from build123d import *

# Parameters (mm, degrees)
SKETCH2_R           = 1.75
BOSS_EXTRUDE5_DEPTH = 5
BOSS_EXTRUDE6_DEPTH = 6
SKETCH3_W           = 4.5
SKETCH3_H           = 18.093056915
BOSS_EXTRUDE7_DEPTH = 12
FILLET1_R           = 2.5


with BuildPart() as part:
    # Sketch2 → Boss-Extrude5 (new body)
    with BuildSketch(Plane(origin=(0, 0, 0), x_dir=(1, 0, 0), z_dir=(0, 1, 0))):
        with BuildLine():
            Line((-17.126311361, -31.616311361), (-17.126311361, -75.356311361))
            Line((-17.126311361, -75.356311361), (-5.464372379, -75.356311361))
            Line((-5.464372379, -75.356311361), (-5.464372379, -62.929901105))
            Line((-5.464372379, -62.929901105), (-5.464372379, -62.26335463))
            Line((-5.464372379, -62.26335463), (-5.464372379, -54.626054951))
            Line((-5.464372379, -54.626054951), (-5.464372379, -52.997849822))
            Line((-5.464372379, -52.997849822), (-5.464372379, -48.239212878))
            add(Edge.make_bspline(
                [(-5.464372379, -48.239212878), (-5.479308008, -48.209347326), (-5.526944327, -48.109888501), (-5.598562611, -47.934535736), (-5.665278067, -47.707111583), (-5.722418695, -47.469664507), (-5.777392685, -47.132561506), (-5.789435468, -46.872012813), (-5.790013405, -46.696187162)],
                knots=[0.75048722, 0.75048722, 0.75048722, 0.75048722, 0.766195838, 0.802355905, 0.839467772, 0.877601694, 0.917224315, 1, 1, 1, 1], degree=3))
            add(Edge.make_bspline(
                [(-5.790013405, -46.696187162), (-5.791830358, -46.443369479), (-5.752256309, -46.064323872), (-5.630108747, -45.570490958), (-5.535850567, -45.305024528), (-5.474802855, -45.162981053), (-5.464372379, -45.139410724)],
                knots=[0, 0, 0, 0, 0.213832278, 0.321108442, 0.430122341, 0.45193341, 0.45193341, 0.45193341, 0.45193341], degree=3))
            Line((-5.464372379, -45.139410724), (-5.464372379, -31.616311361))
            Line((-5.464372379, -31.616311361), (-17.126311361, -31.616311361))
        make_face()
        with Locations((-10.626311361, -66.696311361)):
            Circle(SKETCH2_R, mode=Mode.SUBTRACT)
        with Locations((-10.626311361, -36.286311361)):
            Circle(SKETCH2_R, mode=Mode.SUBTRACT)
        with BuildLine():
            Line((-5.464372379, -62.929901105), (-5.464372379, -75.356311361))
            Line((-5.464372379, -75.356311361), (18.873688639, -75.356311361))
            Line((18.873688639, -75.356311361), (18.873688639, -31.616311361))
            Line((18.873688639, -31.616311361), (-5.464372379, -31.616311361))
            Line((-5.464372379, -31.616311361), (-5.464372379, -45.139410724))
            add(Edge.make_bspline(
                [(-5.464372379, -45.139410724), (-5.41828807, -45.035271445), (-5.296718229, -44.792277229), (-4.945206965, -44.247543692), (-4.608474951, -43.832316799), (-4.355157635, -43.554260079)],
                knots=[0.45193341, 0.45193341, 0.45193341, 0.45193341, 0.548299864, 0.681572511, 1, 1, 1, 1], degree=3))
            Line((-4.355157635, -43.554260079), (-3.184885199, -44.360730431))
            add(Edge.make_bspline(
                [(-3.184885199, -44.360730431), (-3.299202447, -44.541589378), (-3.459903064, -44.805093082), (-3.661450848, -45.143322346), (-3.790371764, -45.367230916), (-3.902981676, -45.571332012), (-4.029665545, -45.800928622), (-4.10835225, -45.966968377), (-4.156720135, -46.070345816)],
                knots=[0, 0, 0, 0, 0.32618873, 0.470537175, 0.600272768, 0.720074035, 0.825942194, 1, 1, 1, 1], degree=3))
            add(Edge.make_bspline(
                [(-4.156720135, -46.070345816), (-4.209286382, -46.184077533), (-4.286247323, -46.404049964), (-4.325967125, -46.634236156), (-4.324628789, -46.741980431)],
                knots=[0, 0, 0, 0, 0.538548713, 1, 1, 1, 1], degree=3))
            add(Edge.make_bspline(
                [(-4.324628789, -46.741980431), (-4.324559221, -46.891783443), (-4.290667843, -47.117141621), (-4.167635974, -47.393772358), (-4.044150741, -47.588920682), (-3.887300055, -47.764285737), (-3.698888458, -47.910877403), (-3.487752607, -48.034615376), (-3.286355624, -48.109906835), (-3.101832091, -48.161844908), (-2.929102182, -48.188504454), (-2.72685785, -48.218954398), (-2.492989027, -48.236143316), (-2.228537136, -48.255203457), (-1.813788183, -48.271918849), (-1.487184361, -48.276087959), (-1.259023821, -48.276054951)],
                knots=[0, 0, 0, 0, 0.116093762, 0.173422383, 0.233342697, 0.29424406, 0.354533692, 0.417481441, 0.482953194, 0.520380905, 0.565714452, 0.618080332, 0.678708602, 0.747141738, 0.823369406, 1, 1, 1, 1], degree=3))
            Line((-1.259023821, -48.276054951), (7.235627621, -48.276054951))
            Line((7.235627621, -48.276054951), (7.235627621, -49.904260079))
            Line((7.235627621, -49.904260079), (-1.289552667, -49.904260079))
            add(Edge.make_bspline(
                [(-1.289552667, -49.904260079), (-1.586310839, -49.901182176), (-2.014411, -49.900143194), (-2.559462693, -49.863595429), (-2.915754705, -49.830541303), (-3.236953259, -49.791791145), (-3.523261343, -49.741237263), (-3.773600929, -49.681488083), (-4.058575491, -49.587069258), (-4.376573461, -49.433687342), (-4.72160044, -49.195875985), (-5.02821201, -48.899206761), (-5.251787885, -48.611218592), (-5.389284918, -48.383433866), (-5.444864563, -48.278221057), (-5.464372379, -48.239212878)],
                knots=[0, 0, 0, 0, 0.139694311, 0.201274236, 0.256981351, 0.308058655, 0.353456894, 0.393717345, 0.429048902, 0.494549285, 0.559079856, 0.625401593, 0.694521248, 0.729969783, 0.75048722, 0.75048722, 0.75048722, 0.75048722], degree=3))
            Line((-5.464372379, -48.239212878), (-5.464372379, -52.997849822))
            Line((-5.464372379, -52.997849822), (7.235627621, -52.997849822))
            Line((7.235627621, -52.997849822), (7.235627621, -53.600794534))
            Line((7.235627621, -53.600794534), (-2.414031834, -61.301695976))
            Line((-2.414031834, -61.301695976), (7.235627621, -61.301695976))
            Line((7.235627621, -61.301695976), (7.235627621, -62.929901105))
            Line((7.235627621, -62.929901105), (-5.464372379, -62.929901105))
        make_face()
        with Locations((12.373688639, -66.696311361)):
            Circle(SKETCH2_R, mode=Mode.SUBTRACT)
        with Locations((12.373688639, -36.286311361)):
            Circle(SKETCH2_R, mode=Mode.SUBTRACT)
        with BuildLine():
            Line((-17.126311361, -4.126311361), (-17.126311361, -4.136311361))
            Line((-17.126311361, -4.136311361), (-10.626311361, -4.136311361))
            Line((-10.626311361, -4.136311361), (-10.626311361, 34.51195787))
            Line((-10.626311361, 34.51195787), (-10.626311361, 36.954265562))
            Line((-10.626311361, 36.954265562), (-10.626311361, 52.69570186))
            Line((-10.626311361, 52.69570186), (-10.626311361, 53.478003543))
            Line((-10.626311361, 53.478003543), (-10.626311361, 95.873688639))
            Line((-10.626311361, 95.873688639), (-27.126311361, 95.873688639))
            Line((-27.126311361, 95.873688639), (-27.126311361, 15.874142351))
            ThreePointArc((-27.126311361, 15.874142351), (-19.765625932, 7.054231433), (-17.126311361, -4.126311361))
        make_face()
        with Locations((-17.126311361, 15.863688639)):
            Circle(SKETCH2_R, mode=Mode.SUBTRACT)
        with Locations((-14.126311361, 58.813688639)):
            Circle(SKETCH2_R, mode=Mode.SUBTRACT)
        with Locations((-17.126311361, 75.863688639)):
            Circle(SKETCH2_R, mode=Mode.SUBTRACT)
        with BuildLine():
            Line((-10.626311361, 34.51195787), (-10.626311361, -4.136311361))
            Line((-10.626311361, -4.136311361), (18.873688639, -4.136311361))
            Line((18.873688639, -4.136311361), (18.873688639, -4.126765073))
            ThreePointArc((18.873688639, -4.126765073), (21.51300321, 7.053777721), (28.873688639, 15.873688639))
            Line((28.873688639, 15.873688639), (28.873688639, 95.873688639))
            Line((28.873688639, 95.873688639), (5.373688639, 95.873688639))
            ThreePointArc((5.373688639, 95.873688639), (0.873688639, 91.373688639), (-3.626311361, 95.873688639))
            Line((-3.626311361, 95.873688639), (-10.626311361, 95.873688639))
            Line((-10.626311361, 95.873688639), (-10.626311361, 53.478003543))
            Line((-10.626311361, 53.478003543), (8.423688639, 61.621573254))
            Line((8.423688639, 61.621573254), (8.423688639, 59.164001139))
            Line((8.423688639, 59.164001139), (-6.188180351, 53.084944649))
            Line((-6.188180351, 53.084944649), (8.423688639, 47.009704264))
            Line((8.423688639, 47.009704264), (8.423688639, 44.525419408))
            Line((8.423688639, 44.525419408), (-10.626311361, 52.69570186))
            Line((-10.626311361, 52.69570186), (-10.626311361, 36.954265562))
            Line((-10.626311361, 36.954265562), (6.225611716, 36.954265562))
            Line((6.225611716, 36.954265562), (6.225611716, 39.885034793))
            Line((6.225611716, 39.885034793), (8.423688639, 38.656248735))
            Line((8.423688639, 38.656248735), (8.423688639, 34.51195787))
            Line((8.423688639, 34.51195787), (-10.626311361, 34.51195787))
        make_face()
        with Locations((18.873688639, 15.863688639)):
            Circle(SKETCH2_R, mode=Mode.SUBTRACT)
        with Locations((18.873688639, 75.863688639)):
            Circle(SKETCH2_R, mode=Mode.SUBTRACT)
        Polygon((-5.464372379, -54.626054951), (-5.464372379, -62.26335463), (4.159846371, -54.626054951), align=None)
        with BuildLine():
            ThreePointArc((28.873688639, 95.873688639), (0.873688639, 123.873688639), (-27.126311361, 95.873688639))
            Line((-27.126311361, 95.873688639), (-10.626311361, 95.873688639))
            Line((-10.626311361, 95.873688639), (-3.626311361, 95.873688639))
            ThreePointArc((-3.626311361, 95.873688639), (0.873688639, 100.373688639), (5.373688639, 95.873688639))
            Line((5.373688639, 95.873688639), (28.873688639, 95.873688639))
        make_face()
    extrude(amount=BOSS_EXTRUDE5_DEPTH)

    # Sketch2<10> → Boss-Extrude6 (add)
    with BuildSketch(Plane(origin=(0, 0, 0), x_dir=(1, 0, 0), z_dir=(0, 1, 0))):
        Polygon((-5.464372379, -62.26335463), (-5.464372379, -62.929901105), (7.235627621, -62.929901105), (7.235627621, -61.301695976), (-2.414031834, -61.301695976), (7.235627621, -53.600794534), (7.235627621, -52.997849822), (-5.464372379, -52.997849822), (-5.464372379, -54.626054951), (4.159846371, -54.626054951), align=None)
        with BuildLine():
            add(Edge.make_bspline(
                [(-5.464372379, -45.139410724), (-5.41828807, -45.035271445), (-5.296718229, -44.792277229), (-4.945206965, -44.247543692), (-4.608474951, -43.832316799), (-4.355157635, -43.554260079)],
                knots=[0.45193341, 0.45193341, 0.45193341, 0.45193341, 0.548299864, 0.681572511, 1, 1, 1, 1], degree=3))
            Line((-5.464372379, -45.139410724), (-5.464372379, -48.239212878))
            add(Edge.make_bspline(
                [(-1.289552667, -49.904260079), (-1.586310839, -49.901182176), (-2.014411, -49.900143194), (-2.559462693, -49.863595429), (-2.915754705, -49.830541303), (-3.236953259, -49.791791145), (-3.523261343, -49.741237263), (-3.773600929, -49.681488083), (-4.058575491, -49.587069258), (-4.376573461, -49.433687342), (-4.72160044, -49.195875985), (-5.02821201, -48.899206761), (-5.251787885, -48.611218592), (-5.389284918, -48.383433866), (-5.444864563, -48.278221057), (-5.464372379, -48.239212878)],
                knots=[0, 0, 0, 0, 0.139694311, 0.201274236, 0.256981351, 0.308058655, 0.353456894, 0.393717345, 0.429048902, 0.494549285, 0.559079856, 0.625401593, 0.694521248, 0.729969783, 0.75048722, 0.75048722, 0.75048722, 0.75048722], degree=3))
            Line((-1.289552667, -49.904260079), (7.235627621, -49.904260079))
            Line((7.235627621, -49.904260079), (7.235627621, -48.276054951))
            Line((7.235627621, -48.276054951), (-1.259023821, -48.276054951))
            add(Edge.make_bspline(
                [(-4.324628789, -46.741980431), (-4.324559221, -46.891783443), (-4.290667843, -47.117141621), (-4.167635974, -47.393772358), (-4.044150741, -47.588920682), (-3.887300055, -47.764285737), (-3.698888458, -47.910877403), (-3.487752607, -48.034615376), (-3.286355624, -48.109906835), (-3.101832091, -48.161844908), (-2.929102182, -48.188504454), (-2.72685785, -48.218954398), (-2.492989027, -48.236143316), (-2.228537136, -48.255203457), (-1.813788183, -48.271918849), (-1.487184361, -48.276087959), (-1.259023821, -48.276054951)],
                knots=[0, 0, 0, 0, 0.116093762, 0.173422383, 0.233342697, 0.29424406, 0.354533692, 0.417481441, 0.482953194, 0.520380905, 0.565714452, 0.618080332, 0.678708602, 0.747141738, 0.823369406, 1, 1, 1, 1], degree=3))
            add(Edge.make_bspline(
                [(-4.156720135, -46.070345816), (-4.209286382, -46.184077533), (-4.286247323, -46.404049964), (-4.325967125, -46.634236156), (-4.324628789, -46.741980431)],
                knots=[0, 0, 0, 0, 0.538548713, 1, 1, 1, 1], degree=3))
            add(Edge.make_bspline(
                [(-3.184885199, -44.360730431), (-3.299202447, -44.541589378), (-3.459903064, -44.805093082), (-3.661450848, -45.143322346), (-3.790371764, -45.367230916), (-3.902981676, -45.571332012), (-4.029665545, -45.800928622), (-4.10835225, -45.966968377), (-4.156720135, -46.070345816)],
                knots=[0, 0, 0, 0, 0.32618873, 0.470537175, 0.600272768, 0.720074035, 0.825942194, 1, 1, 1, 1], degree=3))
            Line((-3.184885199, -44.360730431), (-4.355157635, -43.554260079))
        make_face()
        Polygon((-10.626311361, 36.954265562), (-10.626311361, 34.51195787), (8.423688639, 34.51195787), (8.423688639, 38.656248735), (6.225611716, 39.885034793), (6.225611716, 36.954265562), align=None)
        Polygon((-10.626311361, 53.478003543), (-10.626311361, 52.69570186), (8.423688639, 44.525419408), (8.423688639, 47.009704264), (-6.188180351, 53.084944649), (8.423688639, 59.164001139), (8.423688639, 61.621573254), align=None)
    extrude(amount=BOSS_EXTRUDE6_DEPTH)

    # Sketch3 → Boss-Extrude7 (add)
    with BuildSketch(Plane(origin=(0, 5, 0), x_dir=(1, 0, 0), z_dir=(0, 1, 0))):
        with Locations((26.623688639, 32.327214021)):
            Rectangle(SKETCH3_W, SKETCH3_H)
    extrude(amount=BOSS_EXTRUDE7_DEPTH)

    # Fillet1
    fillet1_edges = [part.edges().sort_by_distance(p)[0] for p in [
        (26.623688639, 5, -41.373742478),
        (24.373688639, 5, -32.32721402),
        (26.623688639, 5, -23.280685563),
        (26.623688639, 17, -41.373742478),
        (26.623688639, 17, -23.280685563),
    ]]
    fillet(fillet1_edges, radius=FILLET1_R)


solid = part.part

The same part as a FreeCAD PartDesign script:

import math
import FreeCAD as App
import Part
import Sketcher
from FreeCAD import Vector
Q = App.Units.Quantity


def edges_at(feature, points):
    """Names of the edges that pass closest to the given points."""
    edges = feature.Shape.Edges
    near = lambda p: min(range(len(edges)), key=lambda i: edges[i].distToShape(Part.Vertex(*p))[0])
    return sorted({f"Edge{near(p) + 1}" for p in points})

doc = App.newDocument("Part")
body = doc.addObject("PartDesign::Body", "Body")
body.AllowCompound = True

sketch1 = body.newObject("Sketcher::SketchObject", "Sketch")
sketch1.AttachmentSupport = (doc.getObject("XZ_Plane"), [""])
sketch1.MapMode = "FlatFace"
sketch1.addGeometry([
    Part.LineSegment(Vector(-17.126311, 31.616311, 0), Vector(-17.126311, 75.356311, 0)),
    Part.LineSegment(Vector(-17.126311, 75.356311, 0), Vector(18.873689, 75.356311, 0)),
    Part.LineSegment(Vector(18.873689, 75.356311, 0), Vector(18.873689, 31.616311, 0)),
    Part.LineSegment(Vector(18.873689, 31.616311, 0), Vector(-17.126311, 31.616311, 0)),
    Part.Circle(Vector(-10.626311, 66.696311, 0), Vector(0, 0, 1), 1.75),
    Part.Circle(Vector(12.373689, 66.696311, 0), Vector(0, 0, 1), 1.75),
    Part.LineSegment(Vector(-5.464372, 62.929901, 0), Vector(-5.464372, 62.263355, 0)),
    Part.LineSegment(Vector(-5.464372, 62.263355, 0), Vector(4.159846, 54.626055, 0)),
    Part.LineSegment(Vector(4.159846, 54.626055, 0), Vector(-5.464372, 54.626055, 0)),
    Part.LineSegment(Vector(-5.464372, 54.626055, 0), Vector(-5.464372, 52.99785, 0)),
    Part.LineSegment(Vector(-5.464372, 52.99785, 0), Vector(7.235628, 52.99785, 0)),
    Part.LineSegment(Vector(7.235628, 52.99785, 0), Vector(7.235628, 53.600795, 0)),
    Part.LineSegment(Vector(7.235628, 53.600795, 0), Vector(-2.414032, 61.301696, 0)),
    Part.LineSegment(Vector(-2.414032, 61.301696, 0), Vector(7.235628, 61.301696, 0)),
    Part.LineSegment(Vector(7.235628, 61.301696, 0), Vector(7.235628, 62.929901, 0)),
    Part.LineSegment(Vector(7.235628, 62.929901, 0), Vector(-5.464372, 62.929901, 0)),
    Part.BSplineCurve([Vector(-5.790013, 46.696187, 0), Vector(-5.79183, 46.443369, 0), Vector(-5.752256, 46.064324, 0), Vector(-5.630109, 45.570491, 0), Vector(-5.535851, 45.305025, 0), Vector(-5.474803, 45.162981, 0), Vector(-5.464372, 45.139411, 0)], [4, 1, 1, 1, 4], [0, 0.213832278, 0.321108442, 0.430122341, 0.45193341], False, 3, [1, 1, 1, 1, 1, 1, 1], False),
    Part.BSplineCurve([Vector(-5.464372, 45.139411, 0), Vector(-5.418288, 45.035271, 0), Vector(-5.296718, 44.792277, 0), Vector(-4.945207, 44.247544, 0), Vector(-4.608475, 43.832317, 0), Vector(-4.355158, 43.55426, 0)], [4, 1, 1, 4], [0.45193341, 0.548299864, 0.681572511, 1], False, 3, [1, 1, 1, 1, 1, 1], False),
    Part.LineSegment(Vector(-4.355158, 43.55426, 0), Vector(-3.184885, 44.36073, 0)),
    Part.BSplineCurve([Vector(-3.184885, 44.36073, 0), Vector(-3.299202, 44.541589, 0), Vector(-3.459903, 44.805093, 0), Vector(-3.661451, 45.143322, 0), Vector(-3.790372, 45.367231, 0), Vector(-3.902982, 45.571332, 0), Vector(-4.029666, 45.800929, 0), Vector(-4.108352, 45.966968, 0), Vector(-4.15672, 46.070346, 0)], [4, 1, 1, 1, 1, 1, 4], [0, 0.32618873, 0.470537175, 0.600272768, 0.720074035, 0.825942194, 1], False, 3, [1, 1, 1, 1, 1, 1, 1, 1, 1], False),
    Part.BSplineCurve([Vector(-4.15672, 46.070346, 0), Vector(-4.209286, 46.184078, 0), Vector(-4.286247, 46.40405, 0), Vector(-4.325967, 46.634236, 0), Vector(-4.324629, 46.74198, 0)], [4, 1, 4], [0, 0.538548713, 1], False, 3, [1, 1, 1, 1, 1], False),
    Part.BSplineCurve([Vector(-4.324629, 46.74198, 0), Vector(-4.324559, 46.891783, 0), Vector(-4.290668, 47.117142, 0), Vector(-4.167636, 47.393772, 0), Vector(-4.044151, 47.588921, 0), Vector(-3.8873, 47.764286, 0), Vector(-3.698888, 47.910877, 0), Vector(-3.487753, 48.034615, 0), Vector(-3.286356, 48.109907, 0), Vector(-3.101832, 48.161845, 0), Vector(-2.929102, 48.188504, 0), Vector(-2.726858, 48.218954, 0), Vector(-2.492989, 48.236143, 0), Vector(-2.228537, 48.255203, 0), Vector(-1.813788, 48.271919, 0), Vector(-1.487184, 48.276088, 0), Vector(-1.259024, 48.276055, 0)], [4, 1, 1, 1, 1, 1, 1, 1, 1, 1, 1, 1, 1, 1, 4], [0, 0.116093762, 0.173422383, 0.233342697, 0.29424406, 0.354533692, 0.417481441, 0.482953194, 0.520380905, 0.565714452, 0.618080332, 0.678708602, 0.747141738, 0.823369406, 1], False, 3, [1, 1, 1, 1, 1, 1, 1, 1, 1, 1, 1, 1, 1, 1, 1, 1, 1], False),
    Part.LineSegment(Vector(-1.259024, 48.276055, 0), Vector(7.235628, 48.276055, 0)),
    Part.LineSegment(Vector(7.235628, 48.276055, 0), Vector(7.235628, 49.90426, 0)),
    Part.LineSegment(Vector(7.235628, 49.90426, 0), Vector(-1.289553, 49.90426, 0)),
    Part.BSplineCurve([Vector(-1.289553, 49.90426, 0), Vector(-1.586311, 49.901182, 0), Vector(-2.014411, 49.900143, 0), Vector(-2.559463, 49.863595, 0), Vector(-2.915755, 49.830541, 0), Vector(-3.236953, 49.791791, 0), Vector(-3.523261, 49.741237, 0), Vector(-3.773601, 49.681488, 0), Vector(-4.058575, 49.587069, 0), Vector(-4.376573, 49.433687, 0), Vector(-4.7216, 49.195876, 0), Vector(-5.028212, 48.899207, 0), Vector(-5.251788, 48.611219, 0), Vector(-5.389285, 48.383434, 0), Vector(-5.444865, 48.278221, 0), Vector(-5.464372, 48.239213, 0)], [4, 1, 1, 1, 1, 1, 1, 1, 1, 1, 1, 1, 1, 4], [0, 0.139694311, 0.201274236, 0.256981351, 0.308058655, 0.353456894, 0.393717345, 0.429048902, 0.494549285, 0.559079856, 0.625401593, 0.694521248, 0.729969783, 0.75048722], False, 3, [1, 1, 1, 1, 1, 1, 1, 1, 1, 1, 1, 1, 1, 1, 1, 1], False),
    Part.BSplineCurve([Vector(-5.464372, 48.239213, 0), Vector(-5.479308, 48.209347, 0), Vector(-5.526944, 48.109889, 0), Vector(-5.598563, 47.934536, 0), Vector(-5.665278, 47.707112, 0), Vector(-5.722419, 47.469665, 0), Vector(-5.777393, 47.132562, 0), Vector(-5.789435, 46.872013, 0), Vector(-5.790013, 46.696187, 0)], [4, 1, 1, 1, 1, 1, 4], [0.75048722, 0.766195838, 0.802355905, 0.839467772, 0.877601694, 0.917224315, 1], False, 3, [1, 1, 1, 1, 1, 1, 1, 1, 1], False),
    Part.Circle(Vector(-10.626311, 36.286311, 0), Vector(0, 0, 1), 1.75),
    Part.Circle(Vector(12.373689, 36.286311, 0), Vector(0, 0, 1), 1.75),
    Part.LineSegment(Vector(-17.126311, 4.126311, 0), Vector(-17.126311, 4.136311, 0)),
    Part.LineSegment(Vector(-17.126311, 4.136311, 0), Vector(18.873689, 4.136311, 0)),
    Part.LineSegment(Vector(18.873689, 4.136311, 0), Vector(18.873689, 4.126765, 0)),
    Part.ArcOfCircle(Part.Circle(Vector(43.874596, 4.126765, 0), Vector(0, 0, 1), 25.000907), math.radians(180), math.radians(233.129063)),
    Part.LineSegment(Vector(28.873689, -15.873689, 0), Vector(28.873689, -95.873689, 0)),
    Part.ArcOfCircle(Part.Circle(Vector(0.873689, -95.873689, 0), Vector(0, 0, 1), 28), math.radians(180), math.radians(360)),
    Part.LineSegment(Vector(-27.126311, -95.873689, 0), Vector(-27.126311, -15.874142, 0)),
    Part.ArcOfCircle(Part.Circle(Vector(-42.127219, 4.126311, 0), Vector(0, 0, 1), 25.000907), math.radians(-53.129063), math.radians(0)),
    Part.Circle(Vector(0.873689, -95.873689, 0), Vector(0, 0, 1), 4.5),
    Part.Circle(Vector(-17.126311, -15.863689, 0), Vector(0, 0, 1), 1.75),
    Part.LineSegment(Vector(-10.626311, -34.511958, 0), Vector(-10.626311, -36.954266, 0)),
    Part.LineSegment(Vector(-10.626311, -36.954266, 0), Vector(6.225612, -36.954266, 0)),
    Part.LineSegment(Vector(6.225612, -36.954266, 0), Vector(6.225612, -39.885035, 0)),
    Part.LineSegment(Vector(6.225612, -39.885035, 0), Vector(8.423689, -38.656249, 0)),
    Part.LineSegment(Vector(8.423689, -38.656249, 0), Vector(8.423689, -34.511958, 0)),
    Part.LineSegment(Vector(8.423689, -34.511958, 0), Vector(-10.626311, -34.511958, 0)),
    Part.Circle(Vector(18.873689, -15.863689, 0), Vector(0, 0, 1), 1.75),
    Part.Circle(Vector(-14.126311, -58.813689, 0), Vector(0, 0, 1), 1.75),
    Part.LineSegment(Vector(-10.626311, -52.695702, 0), Vector(-10.626311, -53.478004, 0)),
    Part.LineSegment(Vector(-10.626311, -53.478004, 0), Vector(8.423689, -61.621573, 0)),
    Part.LineSegment(Vector(8.423689, -61.621573, 0), Vector(8.423689, -59.164001, 0)),
    Part.LineSegment(Vector(8.423689, -59.164001, 0), Vector(-6.18818, -53.084945, 0)),
    Part.LineSegment(Vector(-6.18818, -53.084945, 0), Vector(8.423689, -47.009704, 0)),
    Part.LineSegment(Vector(8.423689, -47.009704, 0), Vector(8.423689, -44.525419, 0)),
    Part.LineSegment(Vector(8.423689, -44.525419, 0), Vector(-10.626311, -52.695702, 0)),
    Part.Circle(Vector(-17.126311, -75.863689, 0), Vector(0, 0, 1), 1.75),
    Part.Circle(Vector(18.873689, -75.863689, 0), Vector(0, 0, 1), 1.75),
], False)
sketch1.addConstraint([
    Sketcher.Constraint("Block", 16),
    Sketcher.Constraint("Block", 17),
    Sketcher.Constraint("Block", 19),
    Sketcher.Constraint("Block", 20),
    Sketcher.Constraint("Block", 21),
    Sketcher.Constraint("Block", 25),
    Sketcher.Constraint("Block", 26),
    Sketcher.Constraint("Coincident", 0, 2, 1, 1),
    Sketcher.Constraint("Coincident", 1, 2, 2, 1),
    Sketcher.Constraint("Coincident", 2, 2, 3, 1),
    Sketcher.Constraint("Coincident", 3, 2, 0, 1),
    Sketcher.Constraint("Coincident", 6, 2, 7, 1),
    Sketcher.Constraint("Coincident", 7, 2, 8, 1),
    Sketcher.Constraint("Coincident", 8, 2, 9, 1),
    Sketcher.Constraint("Coincident", 9, 2, 10, 1),
    Sketcher.Constraint("Coincident", 10, 2, 11, 1),
    Sketcher.Constraint("Coincident", 11, 2, 12, 1),
    Sketcher.Constraint("Coincident", 12, 2, 13, 1),
    Sketcher.Constraint("Coincident", 13, 2, 14, 1),
    Sketcher.Constraint("Coincident", 14, 2, 15, 1),
    Sketcher.Constraint("Coincident", 15, 2, 6, 1),
    Sketcher.Constraint("Coincident", 17, 2, 18, 1),
    Sketcher.Constraint("Coincident", 18, 2, 19, 1),
    Sketcher.Constraint("Coincident", 21, 2, 22, 1),
    Sketcher.Constraint("Coincident", 22, 2, 23, 1),
    Sketcher.Constraint("Coincident", 23, 2, 24, 1),
    Sketcher.Constraint("Coincident", 24, 2, 25, 1),
    Sketcher.Constraint("Coincident", 29, 2, 30, 1),
    Sketcher.Constraint("Coincident", 30, 2, 31, 1),
    Sketcher.Constraint("Coincident", 31, 2, 32, 1),
    Sketcher.Constraint("Coincident", 32, 2, 33, 1),
    Sketcher.Constraint("Coincident", 33, 2, 34, 2),
    Sketcher.Constraint("Coincident", 34, 1, 35, 1),
    Sketcher.Constraint("Coincident", 35, 2, 36, 1),
    Sketcher.Constraint("Coincident", 36, 2, 29, 1),
    Sketcher.Constraint("Coincident", 39, 2, 40, 1),
    Sketcher.Constraint("Coincident", 40, 2, 41, 1),
    Sketcher.Constraint("Coincident", 41, 2, 42, 1),
    Sketcher.Constraint("Coincident", 42, 2, 43, 1),
    Sketcher.Constraint("Coincident", 43, 2, 44, 1),
    Sketcher.Constraint("Coincident", 44, 2, 39, 1),
    Sketcher.Constraint("Coincident", 47, 2, 48, 1),
    Sketcher.Constraint("Coincident", 48, 2, 49, 1),
    Sketcher.Constraint("Coincident", 49, 2, 50, 1),
    Sketcher.Constraint("Coincident", 50, 2, 51, 1),
    Sketcher.Constraint("Coincident", 51, 2, 52, 1),
    Sketcher.Constraint("Coincident", 52, 2, 53, 1),
    Sketcher.Constraint("Coincident", 53, 2, 47, 1),
    Sketcher.Constraint("Vertical", 0),
    Sketcher.Constraint("Horizontal", 1),
    Sketcher.Constraint("Vertical", 2),
    Sketcher.Constraint("Horizontal", 3),
    Sketcher.Constraint("Vertical", 6),
    Sketcher.Constraint("Horizontal", 8),
    Sketcher.Constraint("Vertical", 9),
    Sketcher.Constraint("Horizontal", 10),
    Sketcher.Constraint("Vertical", 11),
    Sketcher.Constraint("Horizontal", 13),
    Sketcher.Constraint("Vertical", 14),
    Sketcher.Constraint("Horizontal", 15),
    Sketcher.Constraint("Horizontal", 22),
    Sketcher.Constraint("Vertical", 23),
    Sketcher.Constraint("Horizontal", 24),
    Sketcher.Constraint("Vertical", 29),
    Sketcher.Constraint("Horizontal", 30),
    Sketcher.Constraint("Vertical", 31),
    Sketcher.Constraint("Vertical", 33),
    Sketcher.Constraint("Vertical", 35),
    Sketcher.Constraint("Vertical", 39),
    Sketcher.Constraint("Horizontal", 40),
    Sketcher.Constraint("Vertical", 41),
    Sketcher.Constraint("Vertical", 43),
    Sketcher.Constraint("Horizontal", 44),
    Sketcher.Constraint("Vertical", 47),
    Sketcher.Constraint("Vertical", 49),
    Sketcher.Constraint("Vertical", 52),
    Sketcher.Constraint("Coincident", 37, 3, 34, 3),
    Sketcher.Constraint("Diameter", 37, Q("9 mm")),
    Sketcher.Constraint("Radius", 34, Q("28 mm")),
    Sketcher.Constraint("Diameter", 4, Q("3.5 mm")),
    Sketcher.Constraint("Diameter", 5, Q("3.5 mm")),
    Sketcher.Constraint("Diameter", 27, Q("3.5 mm")),
    Sketcher.Constraint("Diameter", 28, Q("3.5 mm")),
    Sketcher.Constraint("Diameter", 38, Q("3.5 mm")),
    Sketcher.Constraint("Diameter", 45, Q("3.5 mm")),
    Sketcher.Constraint("Diameter", 46, Q("3.5 mm")),
    Sketcher.Constraint("Diameter", 54, Q("3.5 mm")),
    Sketcher.Constraint("Diameter", 55, Q("3.5 mm")),
    Sketcher.Constraint("DistanceX", 1, 1, 1, 2, Q("36 mm")),
    Sketcher.Constraint("DistanceX", 30, 1, 30, 2, Q("36 mm")),
    Sketcher.Constraint("DistanceY", 33, 2, 33, 1, Q("80 mm")),
    Sketcher.Constraint("DistanceX", 10, 1, 10, 2, Q("12.7 mm")),
    Sketcher.Constraint("DistanceX", 15, 2, 15, 1, Q("12.7 mm")),
    Sketcher.Constraint("DistanceX", 4, 3, 5, 3, Q("23 mm")),
    Sketcher.Constraint("DistanceX", 27, 3, 5, 3, Q("23 mm")),
    Sketcher.Constraint("DistanceX", 27, 3, 28, 3, Q("23 mm")),
    Sketcher.Constraint("DistanceY", 37, 3, 36, 3, Q("100 mm")),
    Sketcher.Constraint("DistanceX", 38, 3, 34, 3, Q("18 mm")),
    Sketcher.Constraint("DistanceX", 38, 3, 45, 3, Q("36 mm")),
    Sketcher.Constraint("DistanceX", 46, 3, 34, 3, Q("15 mm")),
    Sketcher.Constraint("DistanceX", 54, 3, 46, 3, Q("3 mm")),
    Sketcher.Constraint("DistanceY", 54, 3, 38, 3, Q("60 mm")),
    Sketcher.Constraint("DistanceY", 54, 3, 45, 3, Q("60 mm")),
    Sketcher.Constraint("DistanceX", 34, 3, 55, 3, Q("18 mm")),
    Sketcher.Constraint("DistanceY", 55, 3, 45, 3, Q("60 mm")),
    Sketcher.Constraint("DistanceY", 38, 3, 29, 2, Q("20 mm")),
    Sketcher.Constraint("DistanceX", 29, 2, 45, 3, Q("36 mm")),
    Sketcher.Constraint("DistanceX", 44, 2, 44, 1, Q("19.05 mm")),
    Sketcher.Constraint("DistanceY", 0, 1, 0, 2, Q("43.74 mm")),
    Sketcher.Constraint("DistanceY", 29, 1, 29, 2, Q("0.01 mm")),
    Sketcher.Constraint("DistanceX", 27, 3, 34, 3, Q("11.5 mm")),
    Sketcher.Constraint("DistanceX", 0, 2, 4, 3, Q("6.5 mm")),
    Sketcher.Constraint("DistanceX", 6, 2, 10, 2, Q("12.7 mm")),
    Sketcher.Constraint("DistanceX", 38, 3, 39, 2, Q("6.5 mm")),
    Sketcher.Constraint("DistanceX", 46, 3, 47, 2, Q("3.5 mm")),
    Sketcher.Constraint("DistanceY", 27, 3, 4, 3, Q("30.41 mm")),
    Sketcher.Constraint("DistanceY", 27, 3, 5, 3, Q("30.41 mm")),
    Sketcher.Constraint("DistanceY", 28, 3, 5, 3, Q("30.41 mm")),
    Sketcher.Constraint("DistanceY", 34, 3, 27, 3, Q("132.16 mm")),
    Sketcher.Constraint("DistanceY", 38, 3, 36, 3, Q("19.99 mm")),
    Sketcher.Constraint("DistanceY", 34, 3, 46, 3, Q("37.06 mm")),
    Sketcher.Constraint("DistanceY", 4, 3, 0, 2, Q("8.66 mm")),
    Sketcher.Constraint("DistanceY", 22, 2, 7, 2, Q("6.35 mm")),
    Sketcher.Constraint("DistanceY", 32, 2, 45, 3, Q("0.01 mm")),
    Sketcher.Constraint("DistanceY", 34, 1, 54, 3, Q("20.01 mm")),
    Sketcher.Constraint("DistanceX", 48, 2, 55, 3, Q("10.45 mm")),
    Sketcher.Constraint("DistanceY", 47, 2, 47, 1, Q("0.782302 mm")),
    Sketcher.Constraint("DistanceY", 49, 2, -1, 1, Q("59.164001 mm")),
    Sketcher.Constraint("Radius", 32, Q("25.000907 mm")),
    Sketcher.Constraint("Radius", 36, Q("25.000907 mm")),
    Sketcher.Constraint("DistanceX", 8, 2, 8, 1, Q("9.624219 mm")),
    Sketcher.Constraint("DistanceX", 13, 1, 13, 2, Q("9.649659 mm")),
    Sketcher.Constraint("DistanceX", 22, 1, 22, 2, Q("8.494651 mm")),
    Sketcher.Constraint("DistanceY", 41, 2, 41, 1, Q("2.930769 mm")),
    Sketcher.Constraint("DistanceY", 43, 1, 43, 2, Q("4.144291 mm")),
    Sketcher.Constraint("DistanceY", -1, 1, 14, 2, Q("62.929901 mm")),
    Sketcher.Constraint("DistanceY", 53, 2, -1, 1, Q("52.695702 mm")),
    Sketcher.Constraint("DistanceY", 7, 2, 6, 2, Q("7.6373 mm")),
    Sketcher.Constraint("DistanceY", 11, 2, 13, 2, Q("7.700901 mm")),
    Sketcher.Constraint("DistanceX", 24, 2, 7, 2, Q("5.449399 mm")),
    Sketcher.Constraint("Distance", 48, Q("20.717631 mm")),
    Sketcher.Constraint("Distance", 50, Q("15.82598 mm")),
    Sketcher.Constraint("DistanceX", 40, 1, 40, 2, Q("16.851923 mm")),
    Sketcher.Constraint("DistanceY", 9, 2, 9, 1, Q("1.628205 mm")),
    Sketcher.Constraint("DistanceY", 11, 1, 11, 2, Q("0.602945 mm")),
    Sketcher.Constraint("DistanceY", 31, 2, 31, 1, Q("0.009546 mm")),
    Sketcher.Constraint("DistanceY", 39, 2, 39, 1, Q("2.442308 mm")),
    Sketcher.Constraint("DistanceY", 52, 1, 52, 2, Q("2.484285 mm")),
    Sketcher.Constraint("DistanceX", 4, 3, -1, 1, Q("10.626311 mm")),
    Sketcher.Constraint("DistanceY", -1, 1, 4, 3, Q("66.696311 mm")),
    Sketcher.Constraint("DistanceY", 42, 2, -1, 1, Q("38.656249 mm")),
    Sketcher.Constraint("DistanceX", 50, 2, -1, 1, Q("6.18818 mm")),
    Sketcher.Constraint("DistanceX", -1, 1, 51, 2, Q("8.423689 mm")),
    Sketcher.Constraint("DistanceY", 52, 2, -1, 1, Q("44.525419 mm")),
])
pad1 = body.newObject("PartDesign::Pad", "Pad")
pad1.Profile = sketch1
pad1.Length = 5
pad1.Reversed = True

sketch2 = body.newObject("Sketcher::SketchObject", "Sketch001")
sketch2.AttachmentSupport = (doc.getObject("XZ_Plane"), [""])
sketch2.MapMode = "FlatFace"
sketch2.addGeometry([
    Part.LineSegment(Vector(-5.464372, 62.263355, 0), Vector(-5.464372, 62.929901, 0)),
    Part.LineSegment(Vector(-5.464372, 62.929901, 0), Vector(7.235628, 62.929901, 0)),
    Part.LineSegment(Vector(7.235628, 62.929901, 0), Vector(7.235628, 61.301696, 0)),
    Part.LineSegment(Vector(7.235628, 61.301696, 0), Vector(-2.414032, 61.301696, 0)),
    Part.LineSegment(Vector(-2.414032, 61.301696, 0), Vector(7.235628, 53.600795, 0)),
    Part.LineSegment(Vector(7.235628, 53.600795, 0), Vector(7.235628, 52.99785, 0)),
    Part.LineSegment(Vector(7.235628, 52.99785, 0), Vector(-5.464372, 52.99785, 0)),
    Part.LineSegment(Vector(-5.464372, 52.99785, 0), Vector(-5.464372, 54.626055, 0)),
    Part.LineSegment(Vector(-5.464372, 54.626055, 0), Vector(4.159846, 54.626055, 0)),
    Part.LineSegment(Vector(4.159846, 54.626055, 0), Vector(-5.464372, 62.263355, 0)),
    Part.BSplineCurve([Vector(-5.464372, 45.139411, 0), Vector(-5.418288, 45.035271, 0), Vector(-5.296718, 44.792277, 0), Vector(-4.945207, 44.247544, 0), Vector(-4.608475, 43.832317, 0), Vector(-4.355158, 43.55426, 0)], [4, 1, 1, 4], [0.45193341, 0.548299864, 0.681572511, 1], False, 3, [1, 1, 1, 1, 1, 1], False),
    Part.LineSegment(Vector(-5.464372, 45.139411, 0), Vector(-5.464372, 48.239213, 0)),
    Part.BSplineCurve([Vector(-1.289553, 49.90426, 0), Vector(-1.586311, 49.901182, 0), Vector(-2.014411, 49.900143, 0), Vector(-2.559463, 49.863595, 0), Vector(-2.915755, 49.830541, 0), Vector(-3.236953, 49.791791, 0), Vector(-3.523261, 49.741237, 0), Vector(-3.773601, 49.681488, 0), Vector(-4.058575, 49.587069, 0), Vector(-4.376573, 49.433687, 0), Vector(-4.7216, 49.195876, 0), Vector(-5.028212, 48.899207, 0), Vector(-5.251788, 48.611219, 0), Vector(-5.389285, 48.383434, 0), Vector(-5.444865, 48.278221, 0), Vector(-5.464372, 48.239213, 0)], [4, 1, 1, 1, 1, 1, 1, 1, 1, 1, 1, 1, 1, 4], [0, 0.139694311, 0.201274236, 0.256981351, 0.308058655, 0.353456894, 0.393717345, 0.429048902, 0.494549285, 0.559079856, 0.625401593, 0.694521248, 0.729969783, 0.75048722], False, 3, [1, 1, 1, 1, 1, 1, 1, 1, 1, 1, 1, 1, 1, 1, 1, 1], False),
    Part.LineSegment(Vector(-1.289553, 49.90426, 0), Vector(7.235628, 49.90426, 0)),
    Part.LineSegment(Vector(7.235628, 49.90426, 0), Vector(7.235628, 48.276055, 0)),
    Part.LineSegment(Vector(7.235628, 48.276055, 0), Vector(-1.259024, 48.276055, 0)),
    Part.BSplineCurve([Vector(-4.324629, 46.74198, 0), Vector(-4.324559, 46.891783, 0), Vector(-4.290668, 47.117142, 0), Vector(-4.167636, 47.393772, 0), Vector(-4.044151, 47.588921, 0), Vector(-3.8873, 47.764286, 0), Vector(-3.698888, 47.910877, 0), Vector(-3.487753, 48.034615, 0), Vector(-3.286356, 48.109907, 0), Vector(-3.101832, 48.161845, 0), Vector(-2.929102, 48.188504, 0), Vector(-2.726858, 48.218954, 0), Vector(-2.492989, 48.236143, 0), Vector(-2.228537, 48.255203, 0), Vector(-1.813788, 48.271919, 0), Vector(-1.487184, 48.276088, 0), Vector(-1.259024, 48.276055, 0)], [4, 1, 1, 1, 1, 1, 1, 1, 1, 1, 1, 1, 1, 1, 4], [0, 0.116093762, 0.173422383, 0.233342697, 0.29424406, 0.354533692, 0.417481441, 0.482953194, 0.520380905, 0.565714452, 0.618080332, 0.678708602, 0.747141738, 0.823369406, 1], False, 3, [1, 1, 1, 1, 1, 1, 1, 1, 1, 1, 1, 1, 1, 1, 1, 1, 1], False),
    Part.BSplineCurve([Vector(-4.15672, 46.070346, 0), Vector(-4.209286, 46.184078, 0), Vector(-4.286247, 46.40405, 0), Vector(-4.325967, 46.634236, 0), Vector(-4.324629, 46.74198, 0)], [4, 1, 4], [0, 0.538548713, 1], False, 3, [1, 1, 1, 1, 1], False),
    Part.BSplineCurve([Vector(-3.184885, 44.36073, 0), Vector(-3.299202, 44.541589, 0), Vector(-3.459903, 44.805093, 0), Vector(-3.661451, 45.143322, 0), Vector(-3.790372, 45.367231, 0), Vector(-3.902982, 45.571332, 0), Vector(-4.029666, 45.800929, 0), Vector(-4.108352, 45.966968, 0), Vector(-4.15672, 46.070346, 0)], [4, 1, 1, 1, 1, 1, 4], [0, 0.32618873, 0.470537175, 0.600272768, 0.720074035, 0.825942194, 1], False, 3, [1, 1, 1, 1, 1, 1, 1, 1, 1], False),
    Part.LineSegment(Vector(-3.184885, 44.36073, 0), Vector(-4.355158, 43.55426, 0)),
    Part.LineSegment(Vector(-10.626311, -36.954266, 0), Vector(-10.626311, -34.511958, 0)),
    Part.LineSegment(Vector(-10.626311, -34.511958, 0), Vector(8.423689, -34.511958, 0)),
    Part.LineSegment(Vector(8.423689, -34.511958, 0), Vector(8.423689, -38.656249, 0)),
    Part.LineSegment(Vector(8.423689, -38.656249, 0), Vector(6.225612, -39.885035, 0)),
    Part.LineSegment(Vector(6.225612, -39.885035, 0), Vector(6.225612, -36.954266, 0)),
    Part.LineSegment(Vector(6.225612, -36.954266, 0), Vector(-10.626311, -36.954266, 0)),
    Part.LineSegment(Vector(-10.626311, -53.478004, 0), Vector(-10.626311, -52.695702, 0)),
    Part.LineSegment(Vector(-10.626311, -52.695702, 0), Vector(8.423689, -44.525419, 0)),
    Part.LineSegment(Vector(8.423689, -44.525419, 0), Vector(8.423689, -47.009704, 0)),
    Part.LineSegment(Vector(8.423689, -47.009704, 0), Vector(-6.18818, -53.084945, 0)),
    Part.LineSegment(Vector(-6.18818, -53.084945, 0), Vector(8.423689, -59.164001, 0)),
    Part.LineSegment(Vector(8.423689, -59.164001, 0), Vector(8.423689, -61.621573, 0)),
    Part.LineSegment(Vector(8.423689, -61.621573, 0), Vector(-10.626311, -53.478004, 0)),
], False)
sketch2.addConstraint([
    Sketcher.Constraint("Block", 10),
    Sketcher.Constraint("Block", 12),
    Sketcher.Constraint("Block", 16),
    Sketcher.Constraint("Block", 17),
    Sketcher.Constraint("Block", 18),
    Sketcher.Constraint("Coincident", 0, 2, 1, 1),
    Sketcher.Constraint("Coincident", 1, 2, 2, 1),
    Sketcher.Constraint("Coincident", 2, 2, 3, 1),
    Sketcher.Constraint("Coincident", 3, 2, 4, 1),
    Sketcher.Constraint("Coincident", 4, 2, 5, 1),
    Sketcher.Constraint("Coincident", 5, 2, 6, 1),
    Sketcher.Constraint("Coincident", 6, 2, 7, 1),
    Sketcher.Constraint("Coincident", 7, 2, 8, 1),
    Sketcher.Constraint("Coincident", 8, 2, 9, 1),
    Sketcher.Constraint("Coincident", 9, 2, 0, 1),
    Sketcher.Constraint("Coincident", 10, 1, 11, 1),
    Sketcher.Constraint("Coincident", 11, 2, 12, 2),
    Sketcher.Constraint("Coincident", 12, 1, 13, 1),
    Sketcher.Constraint("Coincident", 13, 2, 14, 1),
    Sketcher.Constraint("Coincident", 14, 2, 15, 1),
    Sketcher.Constraint("Coincident", 15, 2, 16, 2),
    Sketcher.Constraint("Coincident", 18, 1, 19, 1),
    Sketcher.Constraint("Coincident", 19, 2, 10, 2),
    Sketcher.Constraint("Coincident", 20, 2, 21, 1),
    Sketcher.Constraint("Coincident", 21, 2, 22, 1),
    Sketcher.Constraint("Coincident", 22, 2, 23, 1),
    Sketcher.Constraint("Coincident", 23, 2, 24, 1),
    Sketcher.Constraint("Coincident", 24, 2, 25, 1),
    Sketcher.Constraint("Coincident", 25, 2, 20, 1),
    Sketcher.Constraint("Coincident", 26, 2, 27, 1),
    Sketcher.Constraint("Coincident", 27, 2, 28, 1),
    Sketcher.Constraint("Coincident", 28, 2, 29, 1),
    Sketcher.Constraint("Coincident", 29, 2, 30, 1),
    Sketcher.Constraint("Coincident", 30, 2, 31, 1),
    Sketcher.Constraint("Coincident", 31, 2, 32, 1),
    Sketcher.Constraint("Coincident", 32, 2, 26, 1),
    Sketcher.Constraint("Vertical", 0),
    Sketcher.Constraint("Horizontal", 1),
    Sketcher.Constraint("Vertical", 2),
    Sketcher.Constraint("Horizontal", 3),
    Sketcher.Constraint("Vertical", 5),
    Sketcher.Constraint("Horizontal", 6),
    Sketcher.Constraint("Vertical", 7),
    Sketcher.Constraint("Horizontal", 8),
    Sketcher.Constraint("Horizontal", 13),
    Sketcher.Constraint("Vertical", 14),
    Sketcher.Constraint("Horizontal", 15),
    Sketcher.Constraint("Vertical", 20),
    Sketcher.Constraint("Horizontal", 21),
    Sketcher.Constraint("Vertical", 22),
    Sketcher.Constraint("Vertical", 24),
    Sketcher.Constraint("Horizontal", 25),
    Sketcher.Constraint("Vertical", 26),
    Sketcher.Constraint("Vertical", 28),
    Sketcher.Constraint("Vertical", 31),
    Sketcher.Constraint("Vertical", 2, 2, 4, 2),
    Sketcher.Constraint("Vertical", 0, 2, 6, 2),
    Sketcher.Constraint("Vertical", 9, 2, 11, 2),
    Sketcher.Constraint("Vertical", 5, 2, 13, 2),
    Sketcher.Constraint("Vertical", 25, 2, 26, 2),
    Sketcher.Constraint("Vertical", 22, 2, 27, 2),
    Sketcher.Constraint("Vertical", 28, 2, 30, 2),
    Sketcher.Constraint("Equal", 2, 7),
    Sketcher.Constraint("Equal", 7, 14),
    Sketcher.Constraint("DistanceX", 1, 1, 1, 2, Q("12.7 mm")),
    Sketcher.Constraint("DistanceX", 21, 1, 21, 2, Q("19.05 mm")),
    Sketcher.Constraint("DistanceY", 14, 2, 8, 2, Q("6.35 mm")),
    Sketcher.Constraint("DistanceY", 26, 1, 26, 2, Q("0.782302 mm")),
    Sketcher.Constraint("DistanceY", 30, 2, -1, 1, Q("59.164001 mm")),
    Sketcher.Constraint("DistanceX", 3, 2, 3, 1, Q("9.649659 mm")),
    Sketcher.Constraint("DistanceX", 8, 1, 8, 2, Q("9.624219 mm")),
    Sketcher.Constraint("DistanceY", 22, 2, 22, 1, Q("4.144291 mm")),
    Sketcher.Constraint("DistanceY", 24, 1, 24, 2, Q("2.930769 mm")),
    Sketcher.Constraint("DistanceY", -1, 1, 0, 2, Q("62.929901 mm")),
    Sketcher.Constraint("DistanceY", 26, 2, -1, 1, Q("52.695702 mm")),
    Sketcher.Constraint("DistanceY", 4, 2, 2, 2, Q("7.700901 mm")),
    Sketcher.Constraint("DistanceY", 7, 2, 9, 2, Q("7.6373 mm")),
    Sketcher.Constraint("Distance", 30, Q("15.82598 mm")),
    Sketcher.Constraint("Distance", 32, Q("20.717631 mm")),
    Sketcher.Constraint("DistanceX", 25, 2, 25, 1, Q("16.851923 mm")),
    Sketcher.Constraint("DistanceY", 20, 1, 20, 2, Q("2.442308 mm")),
    Sketcher.Constraint("DistanceY", 28, 2, 28, 1, Q("2.484285 mm")),
    Sketcher.Constraint("DistanceX", 20, 2, -1, 1, Q("10.626311 mm")),
    Sketcher.Constraint("DistanceY", 22, 2, -1, 1, Q("38.656249 mm")),
    Sketcher.Constraint("DistanceY", 27, 2, -1, 1, Q("44.525419 mm")),
    Sketcher.Constraint("DistanceX", 29, 2, -1, 1, Q("6.18818 mm")),
])
pad2 = body.newObject("PartDesign::Pad", "Pad001")
pad2.Profile = sketch2
pad2.Length = 6
pad2.Reversed = True

sketch3 = body.newObject("Sketcher::SketchObject", "Sketch002")
sketch3.AttachmentSupport = (doc.getObject("XZ_Plane"), [""])
sketch3.MapMode = "FlatFace"
sketch3.AttachmentOffset = App.Placement(Vector(0, 0, -5), App.Rotation())
sketch3.addGeometry([
    Part.LineSegment(Vector(24.373689, -41.373742, 0), Vector(24.373689, -23.280686, 0)),
    Part.LineSegment(Vector(24.373689, -23.280686, 0), Vector(28.873689, -23.280686, 0)),
    Part.LineSegment(Vector(28.873689, -23.280686, 0), Vector(28.873689, -41.373742, 0)),
    Part.LineSegment(Vector(28.873689, -41.373742, 0), Vector(24.373689, -41.373742, 0)),
], False)
sketch3.addConstraint([
    Sketcher.Constraint("Coincident", 0, 2, 1, 1),
    Sketcher.Constraint("Coincident", 1, 2, 2, 1),
    Sketcher.Constraint("Coincident", 2, 2, 3, 1),
    Sketcher.Constraint("Coincident", 3, 2, 0, 1),
    Sketcher.Constraint("Vertical", 0),
    Sketcher.Constraint("Horizontal", 1),
    Sketcher.Constraint("Vertical", 2),
    Sketcher.Constraint("Horizontal", 3),
    Sketcher.Constraint("DistanceX", 1, 1, 1, 2, Q("4.5 mm")),
    Sketcher.Constraint("DistanceY", 0, 1, 0, 2, Q("18.093057 mm")),
    Sketcher.Constraint("DistanceX", -1, 1, 0, 2, Q("24.373689 mm")),
    Sketcher.Constraint("DistanceY", 0, 2, -1, 1, Q("23.280686 mm")),
])
pad3 = body.newObject("PartDesign::Pad", "Pad002")
pad3.Profile = sketch3
pad3.Length = 12
pad3.Reversed = True
doc.recompute()

fillet = body.newObject("PartDesign::Fillet", "Fillet")
fillet.Base = (pad3, edges_at(pad3, [
    (26.624, 5, -41.374),
    (24.374, 5, -32.327),
    (26.624, 5, -23.281),
    (26.624, 17, -41.374),
    (26.624, 17, -23.281),
]))
fillet.Radius = 2.5

doc.recompute()
